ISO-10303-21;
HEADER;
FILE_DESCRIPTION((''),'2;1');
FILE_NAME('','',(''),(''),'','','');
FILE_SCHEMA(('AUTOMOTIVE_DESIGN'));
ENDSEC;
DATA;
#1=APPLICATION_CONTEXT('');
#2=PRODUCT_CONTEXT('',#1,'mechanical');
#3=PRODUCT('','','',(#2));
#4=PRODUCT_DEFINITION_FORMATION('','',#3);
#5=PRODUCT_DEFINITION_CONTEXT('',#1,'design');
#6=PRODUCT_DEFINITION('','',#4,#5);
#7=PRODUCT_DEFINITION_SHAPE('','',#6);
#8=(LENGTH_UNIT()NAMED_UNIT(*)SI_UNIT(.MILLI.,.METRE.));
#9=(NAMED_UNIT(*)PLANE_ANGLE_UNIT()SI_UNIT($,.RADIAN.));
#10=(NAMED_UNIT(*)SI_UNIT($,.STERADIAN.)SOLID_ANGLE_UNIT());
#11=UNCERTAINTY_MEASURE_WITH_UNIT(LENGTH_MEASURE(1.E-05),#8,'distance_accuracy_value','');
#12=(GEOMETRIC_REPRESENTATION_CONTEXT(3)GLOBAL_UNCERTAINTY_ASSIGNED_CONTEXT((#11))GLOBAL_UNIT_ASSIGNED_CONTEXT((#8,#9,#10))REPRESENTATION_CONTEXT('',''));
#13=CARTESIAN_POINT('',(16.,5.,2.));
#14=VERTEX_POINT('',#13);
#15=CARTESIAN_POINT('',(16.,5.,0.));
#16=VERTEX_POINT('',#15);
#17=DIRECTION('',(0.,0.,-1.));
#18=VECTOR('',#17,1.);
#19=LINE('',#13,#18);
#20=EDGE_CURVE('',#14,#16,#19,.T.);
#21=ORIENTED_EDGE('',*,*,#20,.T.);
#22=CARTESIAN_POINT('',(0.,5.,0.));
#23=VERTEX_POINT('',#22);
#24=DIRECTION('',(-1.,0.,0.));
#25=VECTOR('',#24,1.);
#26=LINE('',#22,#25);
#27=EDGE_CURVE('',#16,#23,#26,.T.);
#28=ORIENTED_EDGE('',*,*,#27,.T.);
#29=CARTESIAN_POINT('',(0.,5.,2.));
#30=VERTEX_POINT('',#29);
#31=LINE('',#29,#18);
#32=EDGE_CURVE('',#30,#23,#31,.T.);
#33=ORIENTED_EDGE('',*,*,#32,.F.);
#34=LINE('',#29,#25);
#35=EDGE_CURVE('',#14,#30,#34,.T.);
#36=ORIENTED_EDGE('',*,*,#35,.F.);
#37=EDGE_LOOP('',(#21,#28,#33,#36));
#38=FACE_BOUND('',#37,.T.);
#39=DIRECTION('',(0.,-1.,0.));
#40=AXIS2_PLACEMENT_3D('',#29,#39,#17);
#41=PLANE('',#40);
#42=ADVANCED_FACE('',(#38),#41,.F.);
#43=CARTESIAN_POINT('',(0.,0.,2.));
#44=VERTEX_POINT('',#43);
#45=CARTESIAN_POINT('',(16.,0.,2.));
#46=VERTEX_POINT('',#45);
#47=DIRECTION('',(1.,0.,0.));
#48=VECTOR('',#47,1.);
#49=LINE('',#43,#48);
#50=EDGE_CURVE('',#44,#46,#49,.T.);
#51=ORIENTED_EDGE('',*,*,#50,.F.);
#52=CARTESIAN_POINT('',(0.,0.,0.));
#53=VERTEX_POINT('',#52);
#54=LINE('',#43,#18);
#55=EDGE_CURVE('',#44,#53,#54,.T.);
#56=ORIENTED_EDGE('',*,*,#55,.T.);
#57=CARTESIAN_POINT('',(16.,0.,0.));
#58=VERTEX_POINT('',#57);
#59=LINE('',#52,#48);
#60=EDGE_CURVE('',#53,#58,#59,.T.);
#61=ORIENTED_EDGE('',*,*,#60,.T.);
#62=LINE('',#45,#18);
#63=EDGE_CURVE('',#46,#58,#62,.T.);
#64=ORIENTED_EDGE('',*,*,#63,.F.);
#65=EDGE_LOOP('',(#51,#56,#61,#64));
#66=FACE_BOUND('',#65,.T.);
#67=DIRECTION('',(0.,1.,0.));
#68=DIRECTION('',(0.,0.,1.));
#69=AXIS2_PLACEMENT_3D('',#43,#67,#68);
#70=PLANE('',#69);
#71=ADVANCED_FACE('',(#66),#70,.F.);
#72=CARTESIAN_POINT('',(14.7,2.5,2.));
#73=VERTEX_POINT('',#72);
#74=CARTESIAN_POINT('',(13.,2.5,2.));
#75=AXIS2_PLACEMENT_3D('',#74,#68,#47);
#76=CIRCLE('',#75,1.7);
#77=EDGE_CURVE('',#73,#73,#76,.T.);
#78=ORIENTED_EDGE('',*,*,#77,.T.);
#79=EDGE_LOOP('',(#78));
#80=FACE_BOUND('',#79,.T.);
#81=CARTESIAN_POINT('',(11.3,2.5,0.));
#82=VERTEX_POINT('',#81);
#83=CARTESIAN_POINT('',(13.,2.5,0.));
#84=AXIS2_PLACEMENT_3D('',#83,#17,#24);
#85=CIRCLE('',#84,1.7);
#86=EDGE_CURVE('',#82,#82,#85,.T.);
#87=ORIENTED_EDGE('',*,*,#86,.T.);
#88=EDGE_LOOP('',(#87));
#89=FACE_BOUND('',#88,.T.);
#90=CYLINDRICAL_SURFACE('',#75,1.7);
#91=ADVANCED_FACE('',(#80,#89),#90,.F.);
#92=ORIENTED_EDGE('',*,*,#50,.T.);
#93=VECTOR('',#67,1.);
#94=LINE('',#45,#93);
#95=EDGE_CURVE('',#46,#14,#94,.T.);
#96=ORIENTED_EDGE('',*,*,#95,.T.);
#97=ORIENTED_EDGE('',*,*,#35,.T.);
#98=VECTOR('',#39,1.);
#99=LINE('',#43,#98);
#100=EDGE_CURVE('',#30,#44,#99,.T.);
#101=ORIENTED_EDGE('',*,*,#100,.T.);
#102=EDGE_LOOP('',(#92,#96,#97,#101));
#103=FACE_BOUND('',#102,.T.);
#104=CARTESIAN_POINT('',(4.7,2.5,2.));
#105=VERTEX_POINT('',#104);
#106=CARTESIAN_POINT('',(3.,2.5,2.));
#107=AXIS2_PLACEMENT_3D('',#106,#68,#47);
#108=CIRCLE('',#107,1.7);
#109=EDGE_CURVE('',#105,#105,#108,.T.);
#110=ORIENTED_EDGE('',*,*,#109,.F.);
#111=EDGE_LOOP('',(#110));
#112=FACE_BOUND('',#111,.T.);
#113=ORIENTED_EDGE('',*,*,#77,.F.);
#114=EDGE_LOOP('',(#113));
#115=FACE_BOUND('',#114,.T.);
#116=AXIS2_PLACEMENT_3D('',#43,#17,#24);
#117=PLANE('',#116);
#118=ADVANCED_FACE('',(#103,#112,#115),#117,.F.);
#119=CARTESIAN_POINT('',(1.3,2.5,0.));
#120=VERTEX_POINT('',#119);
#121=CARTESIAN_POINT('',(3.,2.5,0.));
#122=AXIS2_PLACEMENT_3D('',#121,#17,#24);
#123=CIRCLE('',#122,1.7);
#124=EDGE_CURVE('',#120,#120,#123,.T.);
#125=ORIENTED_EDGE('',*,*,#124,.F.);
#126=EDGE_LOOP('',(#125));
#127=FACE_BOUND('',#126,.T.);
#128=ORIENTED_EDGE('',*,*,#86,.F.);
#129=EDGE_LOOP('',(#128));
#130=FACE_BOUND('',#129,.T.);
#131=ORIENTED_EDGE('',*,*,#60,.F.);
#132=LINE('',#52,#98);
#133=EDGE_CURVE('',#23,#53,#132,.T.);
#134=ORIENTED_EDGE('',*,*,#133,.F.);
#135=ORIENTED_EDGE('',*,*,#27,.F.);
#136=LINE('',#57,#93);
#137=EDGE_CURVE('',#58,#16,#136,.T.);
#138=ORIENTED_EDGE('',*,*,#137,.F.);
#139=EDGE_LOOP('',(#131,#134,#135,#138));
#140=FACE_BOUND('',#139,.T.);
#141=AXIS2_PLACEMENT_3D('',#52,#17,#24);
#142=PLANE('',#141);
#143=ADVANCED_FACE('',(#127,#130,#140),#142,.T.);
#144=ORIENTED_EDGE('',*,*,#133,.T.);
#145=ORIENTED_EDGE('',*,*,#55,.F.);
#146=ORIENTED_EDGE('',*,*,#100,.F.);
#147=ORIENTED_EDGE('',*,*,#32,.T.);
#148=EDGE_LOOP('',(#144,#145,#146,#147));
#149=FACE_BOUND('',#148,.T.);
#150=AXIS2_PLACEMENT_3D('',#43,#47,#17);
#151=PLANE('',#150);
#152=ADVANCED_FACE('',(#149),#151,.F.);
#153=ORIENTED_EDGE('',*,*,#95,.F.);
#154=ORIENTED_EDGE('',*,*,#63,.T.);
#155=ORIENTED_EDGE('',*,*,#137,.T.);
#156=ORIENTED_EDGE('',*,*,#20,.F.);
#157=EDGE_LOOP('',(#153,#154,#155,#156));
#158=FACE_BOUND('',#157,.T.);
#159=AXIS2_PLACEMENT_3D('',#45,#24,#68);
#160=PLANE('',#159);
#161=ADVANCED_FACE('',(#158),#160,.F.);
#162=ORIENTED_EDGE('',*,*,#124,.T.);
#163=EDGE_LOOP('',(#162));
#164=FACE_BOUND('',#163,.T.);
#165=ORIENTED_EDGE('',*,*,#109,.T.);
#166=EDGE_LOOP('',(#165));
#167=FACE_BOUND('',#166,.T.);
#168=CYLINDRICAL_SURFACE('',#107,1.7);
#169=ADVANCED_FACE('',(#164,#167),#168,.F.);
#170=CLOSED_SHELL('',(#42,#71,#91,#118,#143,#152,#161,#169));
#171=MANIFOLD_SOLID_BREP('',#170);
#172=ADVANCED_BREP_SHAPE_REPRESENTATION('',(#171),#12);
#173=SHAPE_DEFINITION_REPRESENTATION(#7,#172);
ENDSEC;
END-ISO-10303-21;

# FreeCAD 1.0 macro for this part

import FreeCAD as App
import Part
import Sketcher
from FreeCAD import Vector
Q = App.Units.Quantity

doc = App.newDocument("Part")
body = doc.addObject("PartDesign::Body", "Body")

# Sketch on XY plane
sketch1 = doc.addObject("Sketcher::SketchObject", "Sketch")
body.addObject(sketch1)
sketch1.AttachmentSupport = (doc.XY_Plane, [""])
sketch1.MapMode = "FlatFace"
sketch1.addGeometry([
    Part.LineSegment(Vector(0, 5, 0), Vector(0, 0, 0)),
    Part.LineSegment(Vector(0, 0, 0), Vector(16, 0, 0)),
    Part.LineSegment(Vector(16, 0, 0), Vector(16, 5, 0)),
    Part.LineSegment(Vector(16, 5, 0), Vector(0, 5, 0)),
], False)
sketch1.addConstraint([
    Sketcher.Constraint("Coincident", 0, 2, 1, 1),
    Sketcher.Constraint("Coincident", 1, 2, 2, 1),
    Sketcher.Constraint("Coincident", 2, 2, 3, 1),
    Sketcher.Constraint("Coincident", 3, 2, 0, 1),
    Sketcher.Constraint("Vertical", 0),
    Sketcher.Constraint("Horizontal", 1),
    Sketcher.Constraint("Vertical", 2),
    Sketcher.Constraint("Horizontal", 3),
    Sketcher.Constraint("Coincident", 0, 2, -1, 1),
    Sketcher.Constraint("DistanceX", 1, 1, 1, 2, Q("16 mm")),
    Sketcher.Constraint("DistanceY", 0, 2, 0, 1, Q("5 mm")),
])
pad1 = doc.addObject("PartDesign::Pad", "Pad")
body.addObject(pad1)
pad1.Profile = sketch1
pad1.Length = 2

# Sketch on XY plane
sketch2 = doc.addObject("Sketcher::SketchObject", "Sketch001")
body.addObject(sketch2)
sketch2.AttachmentSupport = (doc.XY_Plane, [""])
sketch2.MapMode = "FlatFace"
sketch2.AttachmentOffset = App.Placement(Vector(0, 0, 2), App.Rotation())
sketch2.addGeometry([
    Part.Circle(Vector(3, 2.5, 0), Vector(0, 0, 1), 1.7),
    Part.Circle(Vector(13, 2.5, 0), Vector(0, 0, 1), 1.7),
], False)
sketch2.addConstraint([
    Sketcher.Constraint("Equal", 0, 1),
    Sketcher.Constraint("Horizontal", 0, 3, 1, 3),
    Sketcher.Constraint("Diameter", 0, Q("3.4 mm")),
    Sketcher.Constraint("DistanceX", -1, 1, 0, 3, Q("3 mm")),
    Sketcher.Constraint("DistanceX", -1, 1, 1, 3, Q("13 mm")),
    Sketcher.Constraint("DistanceY", -1, 1, 0, 3, Q("2.5 mm")),
])
doc.recompute()
hole = doc.addObject("PartDesign::Hole", "Hole")
body.addObject(hole)
hole.Profile = sketch2
hole.ThreadType = "None"
hole.Diameter = 3.4
hole.DepthType = "ThroughAll"

doc.recompute()
